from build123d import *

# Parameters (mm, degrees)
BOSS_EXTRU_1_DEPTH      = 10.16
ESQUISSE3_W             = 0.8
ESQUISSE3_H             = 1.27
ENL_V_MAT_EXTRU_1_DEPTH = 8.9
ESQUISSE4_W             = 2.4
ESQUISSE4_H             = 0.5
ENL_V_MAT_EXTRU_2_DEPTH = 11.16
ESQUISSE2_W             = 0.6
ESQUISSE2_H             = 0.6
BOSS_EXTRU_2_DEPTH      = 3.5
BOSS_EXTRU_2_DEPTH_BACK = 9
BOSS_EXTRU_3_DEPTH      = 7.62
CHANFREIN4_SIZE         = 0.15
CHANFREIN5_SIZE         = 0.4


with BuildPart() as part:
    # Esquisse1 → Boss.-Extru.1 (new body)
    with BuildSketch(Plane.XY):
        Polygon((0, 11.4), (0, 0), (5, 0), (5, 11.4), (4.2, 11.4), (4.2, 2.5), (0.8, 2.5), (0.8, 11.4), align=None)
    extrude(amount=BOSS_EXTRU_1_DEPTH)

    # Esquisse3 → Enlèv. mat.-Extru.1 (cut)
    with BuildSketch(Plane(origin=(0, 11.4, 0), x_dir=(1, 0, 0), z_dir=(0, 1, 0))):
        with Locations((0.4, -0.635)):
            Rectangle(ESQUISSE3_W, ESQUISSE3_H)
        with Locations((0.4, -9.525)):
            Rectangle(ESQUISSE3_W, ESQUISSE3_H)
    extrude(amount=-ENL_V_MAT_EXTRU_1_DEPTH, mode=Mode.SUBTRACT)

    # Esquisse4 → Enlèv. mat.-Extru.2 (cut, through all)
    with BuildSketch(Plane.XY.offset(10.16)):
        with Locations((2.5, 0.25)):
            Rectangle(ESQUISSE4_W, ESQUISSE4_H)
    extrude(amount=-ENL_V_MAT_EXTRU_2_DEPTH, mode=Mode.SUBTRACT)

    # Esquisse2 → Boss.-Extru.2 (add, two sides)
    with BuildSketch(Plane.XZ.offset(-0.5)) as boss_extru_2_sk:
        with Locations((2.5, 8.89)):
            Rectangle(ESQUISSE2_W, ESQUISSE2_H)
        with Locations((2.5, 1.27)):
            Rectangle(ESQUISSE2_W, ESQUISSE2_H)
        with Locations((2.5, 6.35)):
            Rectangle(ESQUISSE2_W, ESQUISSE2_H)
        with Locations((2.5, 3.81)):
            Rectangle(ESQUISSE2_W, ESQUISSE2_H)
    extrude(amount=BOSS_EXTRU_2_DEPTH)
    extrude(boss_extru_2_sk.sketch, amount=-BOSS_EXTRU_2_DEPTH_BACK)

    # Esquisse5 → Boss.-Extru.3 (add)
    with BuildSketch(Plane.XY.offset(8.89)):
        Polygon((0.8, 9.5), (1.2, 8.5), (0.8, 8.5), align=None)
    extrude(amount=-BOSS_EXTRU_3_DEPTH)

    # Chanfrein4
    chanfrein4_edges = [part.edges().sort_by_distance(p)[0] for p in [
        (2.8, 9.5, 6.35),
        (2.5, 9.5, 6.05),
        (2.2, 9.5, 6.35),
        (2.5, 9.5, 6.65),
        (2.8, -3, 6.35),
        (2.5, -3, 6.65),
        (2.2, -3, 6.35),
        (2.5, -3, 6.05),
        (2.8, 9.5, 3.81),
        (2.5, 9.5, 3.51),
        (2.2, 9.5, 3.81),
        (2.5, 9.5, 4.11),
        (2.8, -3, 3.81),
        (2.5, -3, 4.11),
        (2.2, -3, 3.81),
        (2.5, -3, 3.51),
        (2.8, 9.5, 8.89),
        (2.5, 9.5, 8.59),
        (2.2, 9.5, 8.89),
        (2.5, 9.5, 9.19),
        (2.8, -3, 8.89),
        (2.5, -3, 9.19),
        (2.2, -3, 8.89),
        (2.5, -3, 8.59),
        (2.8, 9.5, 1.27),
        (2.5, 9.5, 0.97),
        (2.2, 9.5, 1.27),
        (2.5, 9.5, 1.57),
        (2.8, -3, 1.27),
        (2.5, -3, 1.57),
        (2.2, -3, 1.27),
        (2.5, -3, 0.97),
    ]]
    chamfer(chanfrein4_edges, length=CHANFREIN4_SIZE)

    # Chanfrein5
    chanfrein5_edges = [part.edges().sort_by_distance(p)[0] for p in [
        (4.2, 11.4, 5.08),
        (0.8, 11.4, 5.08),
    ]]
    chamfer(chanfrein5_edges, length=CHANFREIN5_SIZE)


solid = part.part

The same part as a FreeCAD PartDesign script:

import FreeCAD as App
import Part
import Sketcher
from FreeCAD import Vector
Q = App.Units.Quantity


def edges_at(feature, points):
    """Names of the edges that pass closest to the given points."""
    edges = feature.Shape.Edges
    near = lambda p: min(range(len(edges)), key=lambda i: edges[i].distToShape(Part.Vertex(*p))[0])
    return sorted({f"Edge{near(p) + 1}" for p in points})

doc = App.newDocument("Part")
body = doc.addObject("PartDesign::Body", "Body")

# Sketch on XY plane
sketch1 = doc.addObject("Sketcher::SketchObject", "Sketch")
body.addObject(sketch1)
sketch1.AttachmentSupport = (doc.XY_Plane, [""])
sketch1.MapMode = "FlatFace"
sketch1.addGeometry(Part.LineSegment(Vector(0, 11.4, 0), Vector(0, 0, 0)), False)
sketch1.addGeometry(Part.LineSegment(Vector(0, 0, 0), Vector(5, 0, 0)), False)
sketch1.addGeometry(Part.LineSegment(Vector(5, 0, 0), Vector(5, 11.4, 0)), False)
sketch1.addGeometry(Part.LineSegment(Vector(5, 11.4, 0), Vector(4.2, 11.4, 0)), False)
sketch1.addGeometry(Part.LineSegment(Vector(4.2, 11.4, 0), Vector(4.2, 2.5, 0)), False)
sketch1.addGeometry(Part.LineSegment(Vector(4.2, 2.5, 0), Vector(0.8, 2.5, 0)), False)
sketch1.addGeometry(Part.LineSegment(Vector(0.8, 2.5, 0), Vector(0.8, 11.4, 0)), False)
sketch1.addGeometry(Part.LineSegment(Vector(0.8, 11.4, 0), Vector(0, 11.4, 0)), False)
sketch1.addConstraint(Sketcher.Constraint("Coincident", 0, 2, 1, 1))
sketch1.addConstraint(Sketcher.Constraint("Coincident", 1, 2, 2, 1))
sketch1.addConstraint(Sketcher.Constraint("Coincident", 2, 2, 3, 1))
sketch1.addConstraint(Sketcher.Constraint("Coincident", 3, 2, 4, 1))
sketch1.addConstraint(Sketcher.Constraint("Coincident", 4, 2, 5, 1))
sketch1.addConstraint(Sketcher.Constraint("Coincident", 5, 2, 6, 1))
sketch1.addConstraint(Sketcher.Constraint("Coincident", 6, 2, 7, 1))
sketch1.addConstraint(Sketcher.Constraint("Coincident", 7, 2, 0, 1))
sketch1.addConstraint(Sketcher.Constraint("Vertical", 0))
sketch1.addConstraint(Sketcher.Constraint("Horizontal", 1))
sketch1.addConstraint(Sketcher.Constraint("Vertical", 2))
sketch1.addConstraint(Sketcher.Constraint("Horizontal", 3))
sketch1.addConstraint(Sketcher.Constraint("Vertical", 4))
sketch1.addConstraint(Sketcher.Constraint("Horizontal", 5))
sketch1.addConstraint(Sketcher.Constraint("Vertical", 6))
sketch1.addConstraint(Sketcher.Constraint("Horizontal", 7))
sketch1.addConstraint(Sketcher.Constraint("Coincident", 0, 2, -1, 1))
sketch1.addConstraint(Sketcher.Constraint("Horizontal", 3, 2, 6, 2))
sketch1.addConstraint(Sketcher.Constraint("Equal", 3, 7))
sketch1.addConstraint(Sketcher.Constraint("DistanceX", 1, 1, 1, 2, Q("5 mm")))
sketch1.addConstraint(Sketcher.Constraint("DistanceX", 3, 2, 3, 1, Q("0.8 mm")))
sketch1.addConstraint(Sketcher.Constraint("DistanceY", 0, 2, 0, 1, Q("11.4 mm")))
sketch1.addConstraint(Sketcher.Constraint("DistanceY", 4, 2, 4, 1, Q("8.9 mm")))
pad1 = doc.addObject("PartDesign::Pad", "Pad")
body.addObject(pad1)
pad1.Profile = sketch1
pad1.Length = 10.16

# Sketch on XZ plane
sketch2 = doc.addObject("Sketcher::SketchObject", "Sketch001")
body.addObject(sketch2)
sketch2.AttachmentSupport = (doc.XZ_Plane, [""])
sketch2.MapMode = "FlatFace"
sketch2.AttachmentOffset = App.Placement(Vector(0, 0, -11.4), App.Rotation())
sketch2.addGeometry(Part.LineSegment(Vector(0, 0, 0), Vector(0, 1.27, 0)), False)
sketch2.addGeometry(Part.LineSegment(Vector(0, 1.27, 0), Vector(0.8, 1.27, 0)), False)
sketch2.addGeometry(Part.LineSegment(Vector(0.8, 1.27, 0), Vector(0.8, 0, 0)), False)
sketch2.addGeometry(Part.LineSegment(Vector(0.8, 0, 0), Vector(0, 0, 0)), False)
sketch2.addGeometry(Part.LineSegment(Vector(0, 8.89, 0), Vector(0, 10.16, 0)), False)
sketch2.addGeometry(Part.LineSegment(Vector(0, 10.16, 0), Vector(0.8, 10.16, 0)), False)
sketch2.addGeometry(Part.LineSegment(Vector(0.8, 10.16, 0), Vector(0.8, 8.89, 0)), False)
sketch2.addGeometry(Part.LineSegment(Vector(0.8, 8.89, 0), Vector(0, 8.89, 0)), False)
sketch2.addConstraint(Sketcher.Constraint("Coincident", 0, 2, 1, 1))
sketch2.addConstraint(Sketcher.Constraint("Coincident", 1, 2, 2, 1))
sketch2.addConstraint(Sketcher.Constraint("Coincident", 2, 2, 3, 1))
sketch2.addConstraint(Sketcher.Constraint("Coincident", 3, 2, 0, 1))
sketch2.addConstraint(Sketcher.Constraint("Coincident", 4, 2, 5, 1))
sketch2.addConstraint(Sketcher.Constraint("Coincident", 5, 2, 6, 1))
sketch2.addConstraint(Sketcher.Constraint("Coincident", 6, 2, 7, 1))
sketch2.addConstraint(Sketcher.Constraint("Coincident", 7, 2, 4, 1))
sketch2.addConstraint(Sketcher.Constraint("Vertical", 0))
sketch2.addConstraint(Sketcher.Constraint("Horizontal", 1))
sketch2.addConstraint(Sketcher.Constraint("Vertical", 2))
sketch2.addConstraint(Sketcher.Constraint("Horizontal", 3))
sketch2.addConstraint(Sketcher.Constraint("Vertical", 4))
sketch2.addConstraint(Sketcher.Constraint("Horizontal", 5))
sketch2.addConstraint(Sketcher.Constraint("Vertical", 6))
sketch2.addConstraint(Sketcher.Constraint("Horizontal", 7))
sketch2.addConstraint(Sketcher.Constraint("Coincident", 3, 2, -1, 1))
sketch2.addConstraint(Sketcher.Constraint("PointOnObject", 4, 2, -2))
sketch2.addConstraint(Sketcher.Constraint("Vertical", 2, 2, 5, 2))
sketch2.addConstraint(Sketcher.Constraint("Equal", 2, 4))
sketch2.addConstraint(Sketcher.Constraint("DistanceX", 1, 1, 1, 2, Q("0.8 mm")))
sketch2.addConstraint(Sketcher.Constraint("DistanceY", 0, 1, 0, 2, Q("1.27 mm")))
sketch2.addConstraint(Sketcher.Constraint("DistanceY", -1, 1, 4, 2, Q("10.16 mm")))
pocket1 = doc.addObject("PartDesign::Pocket", "Pocket")
body.addObject(pocket1)
pocket1.Profile = sketch2
pocket1.Length = 8.9
pocket1.Reversed = True

# Sketch on XY plane
sketch3 = doc.addObject("Sketcher::SketchObject", "Sketch002")
body.addObject(sketch3)
sketch3.AttachmentSupport = (doc.XY_Plane, [""])
sketch3.MapMode = "FlatFace"
sketch3.AttachmentOffset = App.Placement(Vector(0, 0, 10.16), App.Rotation())
sketch3.addGeometry(Part.LineSegment(Vector(1.3, 0.5, 0), Vector(1.3, 0, 0)), False)
sketch3.addGeometry(Part.LineSegment(Vector(1.3, 0, 0), Vector(3.7, 0, 0)), False)
sketch3.addGeometry(Part.LineSegment(Vector(3.7, 0, 0), Vector(3.7, 0.5, 0)), False)
sketch3.addGeometry(Part.LineSegment(Vector(3.7, 0.5, 0), Vector(1.3, 0.5, 0)), False)
sketch3.addConstraint(Sketcher.Constraint("Coincident", 0, 2, 1, 1))
sketch3.addConstraint(Sketcher.Constraint("Coincident", 1, 2, 2, 1))
sketch3.addConstraint(Sketcher.Constraint("Coincident", 2, 2, 3, 1))
sketch3.addConstraint(Sketcher.Constraint("Coincident", 3, 2, 0, 1))
sketch3.addConstraint(Sketcher.Constraint("Vertical", 0))
sketch3.addConstraint(Sketcher.Constraint("Horizontal", 1))
sketch3.addConstraint(Sketcher.Constraint("Vertical", 2))
sketch3.addConstraint(Sketcher.Constraint("Horizontal", 3))
sketch3.addConstraint(Sketcher.Constraint("PointOnObject", 0, 2, -1))
sketch3.addConstraint(Sketcher.Constraint("DistanceX", 1, 1, 1, 2, Q("2.4 mm")))
sketch3.addConstraint(Sketcher.Constraint("DistanceY", 0, 2, 0, 1, Q("0.5 mm")))
sketch3.addConstraint(Sketcher.Constraint("DistanceX", -1, 1, 0, 2, Q("1.3 mm")))
pocket2 = doc.addObject("PartDesign::Pocket", "Pocket001")
body.addObject(pocket2)
pocket2.Profile = sketch3
pocket2.Type = "ThroughAll"

# Sketch on XZ plane
sketch4 = doc.addObject("Sketcher::SketchObject", "Sketch003")
body.addObject(sketch4)
sketch4.AttachmentSupport = (doc.XZ_Plane, [""])
sketch4.MapMode = "FlatFace"
sketch4.AttachmentOffset = App.Placement(Vector(0, 0, -0.5), App.Rotation())
sketch4.addGeometry(Part.LineSegment(Vector(2.2, 9.19, 0), Vector(2.2, 8.59, 0)), False)
sketch4.addGeometry(Part.LineSegment(Vector(2.2, 8.59, 0), Vector(2.8, 8.59, 0)), False)
sketch4.addGeometry(Part.LineSegment(Vector(2.8, 8.59, 0), Vector(2.8, 9.19, 0)), False)
sketch4.addGeometry(Part.LineSegment(Vector(2.8, 9.19, 0), Vector(2.2, 9.19, 0)), False)
sketch4.addGeometry(Part.LineSegment(Vector(2.2, 1.57, 0), Vector(2.2, 0.97, 0)), False)
sketch4.addGeometry(Part.LineSegment(Vector(2.2, 0.97, 0), Vector(2.8, 0.97, 0)), False)
sketch4.addGeometry(Part.LineSegment(Vector(2.8, 0.97, 0), Vector(2.8, 1.57, 0)), False)
sketch4.addGeometry(Part.LineSegment(Vector(2.8, 1.57, 0), Vector(2.2, 1.57, 0)), False)
sketch4.addGeometry(Part.LineSegment(Vector(2.2, 6.65, 0), Vector(2.2, 6.05, 0)), False)
sketch4.addGeometry(Part.LineSegment(Vector(2.2, 6.05, 0), Vector(2.8, 6.05, 0)), False)
sketch4.addGeometry(Part.LineSegment(Vector(2.8, 6.05, 0), Vector(2.8, 6.65, 0)), False)
sketch4.addGeometry(Part.LineSegment(Vector(2.8, 6.65, 0), Vector(2.2, 6.65, 0)), False)
sketch4.addGeometry(Part.LineSegment(Vector(2.2, 4.11, 0), Vector(2.2, 3.51, 0)), False)
sketch4.addGeometry(Part.LineSegment(Vector(2.2, 3.51, 0), Vector(2.8, 3.51, 0)), False)
sketch4.addGeometry(Part.LineSegment(Vector(2.8, 3.51, 0), Vector(2.8, 4.11, 0)), False)
sketch4.addGeometry(Part.LineSegment(Vector(2.8, 4.11, 0), Vector(2.2, 4.11, 0)), False)
sketch4.addConstraint(Sketcher.Constraint("Coincident", 0, 2, 1, 1))
sketch4.addConstraint(Sketcher.Constraint("Coincident", 1, 2, 2, 1))
sketch4.addConstraint(Sketcher.Constraint("Coincident", 2, 2, 3, 1))
sketch4.addConstraint(Sketcher.Constraint("Coincident", 3, 2, 0, 1))
sketch4.addConstraint(Sketcher.Constraint("Coincident", 4, 2, 5, 1))
sketch4.addConstraint(Sketcher.Constraint("Coincident", 5, 2, 6, 1))
sketch4.addConstraint(Sketcher.Constraint("Coincident", 6, 2, 7, 1))
sketch4.addConstraint(Sketcher.Constraint("Coincident", 7, 2, 4, 1))
sketch4.addConstraint(Sketcher.Constraint("Coincident", 8, 2, 9, 1))
sketch4.addConstraint(Sketcher.Constraint("Coincident", 9, 2, 10, 1))
sketch4.addConstraint(Sketcher.Constraint("Coincident", 10, 2, 11, 1))
sketch4.addConstraint(Sketcher.Constraint("Coincident", 11, 2, 8, 1))
sketch4.addConstraint(Sketcher.Constraint("Coincident", 12, 2, 13, 1))
sketch4.addConstraint(Sketcher.Constraint("Coincident", 13, 2, 14, 1))
sketch4.addConstraint(Sketcher.Constraint("Coincident", 14, 2, 15, 1))
sketch4.addConstraint(Sketcher.Constraint("Coincident", 15, 2, 12, 1))
sketch4.addConstraint(Sketcher.Constraint("Vertical", 0))
sketch4.addConstraint(Sketcher.Constraint("Horizontal", 1))
sketch4.addConstraint(Sketcher.Constraint("Vertical", 2))
sketch4.addConstraint(Sketcher.Constraint("Horizontal", 3))
sketch4.addConstraint(Sketcher.Constraint("Vertical", 4))
sketch4.addConstraint(Sketcher.Constraint("Horizontal", 5))
sketch4.addConstraint(Sketcher.Constraint("Vertical", 6))
sketch4.addConstraint(Sketcher.Constraint("Horizontal", 7))
sketch4.addConstraint(Sketcher.Constraint("Vertical", 8))
sketch4.addConstraint(Sketcher.Constraint("Horizontal", 9))
sketch4.addConstraint(Sketcher.Constraint("Vertical", 10))
sketch4.addConstraint(Sketcher.Constraint("Horizontal", 11))
sketch4.addConstraint(Sketcher.Constraint("Vertical", 12))
sketch4.addConstraint(Sketcher.Constraint("Horizontal", 13))
sketch4.addConstraint(Sketcher.Constraint("Vertical", 14))
sketch4.addConstraint(Sketcher.Constraint("Horizontal", 15))
sketch4.addConstraint(Sketcher.Constraint("Vertical", 3, 2, 4, 2))
sketch4.addConstraint(Sketcher.Constraint("Vertical", 2, 2, 5, 2))
sketch4.addConstraint(Sketcher.Constraint("Vertical", 7, 2, 8, 2))
sketch4.addConstraint(Sketcher.Constraint("Vertical", 6, 2, 9, 2))
sketch4.addConstraint(Sketcher.Constraint("Vertical", 11, 2, 12, 2))
sketch4.addConstraint(Sketcher.Constraint("Vertical", 10, 2, 13, 2))
sketch4.addConstraint(Sketcher.Constraint("Equal", 15, 0))
sketch4.addConstraint(Sketcher.Constraint("Equal", 2, 4))
sketch4.addConstraint(Sketcher.Constraint("Equal", 6, 8))
sketch4.addConstraint(Sketcher.Constraint("Equal", 10, 12))
sketch4.addConstraint(Sketcher.Constraint("DistanceX", 1, 1, 1, 2, Q("0.6 mm")))
sketch4.addConstraint(Sketcher.Constraint("DistanceX", -1, 1, 0, 2, Q("2.2 mm")))
sketch4.addConstraint(Sketcher.Constraint("DistanceY", -1, 1, 0, 2, Q("8.59 mm")))
sketch4.addConstraint(Sketcher.Constraint("DistanceY", -1, 1, 4, 2, Q("0.97 mm")))
sketch4.addConstraint(Sketcher.Constraint("DistanceY", -1, 1, 8, 2, Q("6.05 mm")))
sketch4.addConstraint(Sketcher.Constraint("DistanceY", -1, 1, 12, 2, Q("3.51 mm")))
pad2 = doc.addObject("PartDesign::Pad", "Pad001")
body.addObject(pad2)
pad2.Profile = sketch4
pad2.Type = "TwoLengths"
pad2.Length = 3.5
pad2.Length2 = 9

# Sketch on XY plane
sketch5 = doc.addObject("Sketcher::SketchObject", "Sketch004")
body.addObject(sketch5)
sketch5.AttachmentSupport = (doc.XY_Plane, [""])
sketch5.MapMode = "FlatFace"
sketch5.AttachmentOffset = App.Placement(Vector(0, 0, 8.89), App.Rotation())
sketch5.addGeometry(Part.LineSegment(Vector(1.2, 8.5, 0), Vector(0.8, 9.5, 0)), False)
sketch5.addGeometry(Part.LineSegment(Vector(0.8, 9.5, 0), Vector(0.8, 8.5, 0)), False)
sketch5.addGeometry(Part.LineSegment(Vector(0.8, 8.5, 0), Vector(1.2, 8.5, 0)), False)
sketch5.addConstraint(Sketcher.Constraint("Coincident", 0, 2, 1, 1))
sketch5.addConstraint(Sketcher.Constraint("Coincident", 1, 2, 2, 1))
sketch5.addConstraint(Sketcher.Constraint("Coincident", 2, 2, 0, 1))
sketch5.addConstraint(Sketcher.Constraint("Vertical", 1))
sketch5.addConstraint(Sketcher.Constraint("Horizontal", 2))
sketch5.addConstraint(Sketcher.Constraint("DistanceY", 1, 2, 1, 1, Q("1 mm")))
sketch5.addConstraint(Sketcher.Constraint("DistanceX", 2, 1, 2, 2, Q("0.4 mm")))
sketch5.addConstraint(Sketcher.Constraint("DistanceX", -1, 1, 0, 2, Q("0.8 mm")))
sketch5.addConstraint(Sketcher.Constraint("DistanceY", -1, 1, 0, 2, Q("9.5 mm")))
pad3 = doc.addObject("PartDesign::Pad", "Pad002")
body.addObject(pad3)
pad3.Profile = sketch5
pad3.Length = 7.62
pad3.Reversed = True
doc.recompute()

chamfer = doc.addObject("PartDesign::Chamfer", "Chamfer")
body.addObject(chamfer)
chamfer.Base = (pad3, edges_at(pad3, [
    (2.8, 9.5, 6.35),
    (2.5, 9.5, 6.05),
    (2.2, 9.5, 6.35),
    (2.5, 9.5, 6.65),
    (2.8, -3, 6.35),
    (2.5, -3, 6.65),
    (2.2, -3, 6.35),
    (2.5, -3, 6.05),
    (2.8, 9.5, 3.81),
    (2.5, 9.5, 3.51),
    (2.2, 9.5, 3.81),
    (2.5, 9.5, 4.11),
    (2.8, -3, 3.81),
    (2.5, -3, 4.11),
    (2.2, -3, 3.81),
    (2.5, -3, 3.51),
    (2.8, 9.5, 8.89),
    (2.5, 9.5, 8.59),
    (2.2, 9.5, 8.89),
    (2.5, 9.5, 9.19),
    (2.8, -3, 8.89),
    (2.5, -3, 9.19),
    (2.2, -3, 8.89),
    (2.5, -3, 8.59),
    (2.8, 9.5, 1.27),
    (2.5, 9.5, 0.97),
    (2.2, 9.5, 1.27),
    (2.5, 9.5, 1.57),
    (2.8, -3, 1.27),
    (2.5, -3, 1.57),
    (2.2, -3, 1.27),
    (2.5, -3, 0.97),
]))
chamfer.Size = 0.15
doc.recompute()

chamfer2 = doc.addObject("PartDesign::Chamfer", "Chamfer001")
body.addObject(chamfer2)
chamfer2.Base = (chamfer, edges_at(chamfer, [(4.2, 11.4, 5.08), (0.8, 11.4, 5.08)]))
chamfer2.Size = 0.4

doc.recompute()
